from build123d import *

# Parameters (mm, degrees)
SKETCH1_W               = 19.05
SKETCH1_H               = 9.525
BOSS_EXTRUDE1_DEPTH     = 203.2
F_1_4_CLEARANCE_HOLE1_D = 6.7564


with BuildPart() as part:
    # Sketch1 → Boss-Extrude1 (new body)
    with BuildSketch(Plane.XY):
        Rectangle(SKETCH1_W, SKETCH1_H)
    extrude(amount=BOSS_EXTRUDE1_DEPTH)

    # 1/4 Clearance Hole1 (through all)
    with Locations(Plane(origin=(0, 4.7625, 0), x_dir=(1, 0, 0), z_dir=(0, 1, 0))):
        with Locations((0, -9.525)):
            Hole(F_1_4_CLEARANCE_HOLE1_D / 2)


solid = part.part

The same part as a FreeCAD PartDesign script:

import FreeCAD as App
import Part
import Sketcher

V = App.Vector
Q = App.Units.Quantity


def add_polygon(sketch, points):
    """Adds a closed chain of lines whose ends are joined by coincident constraints."""
    first, n = sketch.GeometryCount, len(points)
    for a, b in zip(points, points[1:] + points[:1]):
        sketch.addGeometry(Part.LineSegment(App.Vector(*a, 0), App.Vector(*b, 0)), False)
    for i in range(n):
        sketch.addConstraint(Sketcher.Constraint("Coincident", first + i, 2, first + (i + 1) % n, 1))

doc = App.newDocument("Part")
params = doc.addObject("Spreadsheet::Sheet", "Params")
for row, (alias, value) in enumerate([
    ("sketch1_width", "0.75 in"),
    ("sketch1_height", "0.375 in"),
    ("pad1_length", "8 in"),
    ("sketch2_diameter", "0.266 in"),
    ("hole_diameter", "0.266 in"),
], start=1):
    params.set(f"A{row}", alias)
    params.set(f"B{row}", "=" + value)
    params.setAlias(f"B{row}", alias)

body = doc.addObject("PartDesign::Body", "Body")

# Sketch on XY plane
sketch1 = doc.addObject("Sketcher::SketchObject", "Sketch")
body.addObject(sketch1)
sketch1.AttachmentSupport = (doc.XY_Plane, [""])
sketch1.MapMode = "FlatFace"
add_polygon(sketch1, [(-9.525, 4.7625), (-9.525, -4.7625), (9.525, -4.7625), (9.525, 4.7625)])  # lines 0-3
sketch1.addConstraint([
    Sketcher.Constraint("Vertical", 0),
    Sketcher.Constraint("Horizontal", 1),
    Sketcher.Constraint("Vertical", 2),
    Sketcher.Constraint("Horizontal", 3),
    Sketcher.Constraint("Symmetric", 0, 2, 2, 2, -1, 1),
    Sketcher.Constraint("DistanceX", 1, 1, 1, 2, Q("0.75 in")),
    Sketcher.Constraint("DistanceY", 0, 2, 0, 1, Q("0.375 in")),
])
sketch1.setExpression("Constraints[9]", "Params.sketch1_width")
sketch1.setExpression("Constraints[10]", "Params.sketch1_height")
pad1 = doc.addObject("PartDesign::Pad", "Pad")
body.addObject(pad1)
pad1.Profile = sketch1
pad1.setExpression("Length", "Params.pad1_length")

# Sketch on XZ plane
sketch2 = doc.addObject("Sketcher::SketchObject", "Sketch001")
body.addObject(sketch2)
sketch2.AttachmentSupport = (doc.XZ_Plane, [""])
sketch2.MapMode = "FlatFace"
sketch2.AttachmentOffset = App.Placement(V(0, 0, -0.1875 * 25.4), App.Rotation())
sketch2.addGeometry(Part.Circle(V(0, 9.525, 0), V(0, 0, 1), 3.3782), False)
sketch2.addConstraint([
    Sketcher.Constraint("PointOnObject", 0, 3, -2),
    Sketcher.Constraint("Diameter", 0, Q("0.266 in")),
    Sketcher.Constraint("DistanceY", -1, 1, 0, 3, Q("0.375 in")),
])
sketch2.setExpression("Constraints[1]", "Params.sketch2_diameter")
doc.recompute()
hole = doc.addObject("PartDesign::Hole", "Hole")
body.addObject(hole)
hole.Profile = sketch2
hole.ThreadType = "None"
hole.setExpression("Diameter", "Params.hole_diameter")
hole.DepthType = "ThroughAll"
hole.Reversed = True

doc.recompute()
